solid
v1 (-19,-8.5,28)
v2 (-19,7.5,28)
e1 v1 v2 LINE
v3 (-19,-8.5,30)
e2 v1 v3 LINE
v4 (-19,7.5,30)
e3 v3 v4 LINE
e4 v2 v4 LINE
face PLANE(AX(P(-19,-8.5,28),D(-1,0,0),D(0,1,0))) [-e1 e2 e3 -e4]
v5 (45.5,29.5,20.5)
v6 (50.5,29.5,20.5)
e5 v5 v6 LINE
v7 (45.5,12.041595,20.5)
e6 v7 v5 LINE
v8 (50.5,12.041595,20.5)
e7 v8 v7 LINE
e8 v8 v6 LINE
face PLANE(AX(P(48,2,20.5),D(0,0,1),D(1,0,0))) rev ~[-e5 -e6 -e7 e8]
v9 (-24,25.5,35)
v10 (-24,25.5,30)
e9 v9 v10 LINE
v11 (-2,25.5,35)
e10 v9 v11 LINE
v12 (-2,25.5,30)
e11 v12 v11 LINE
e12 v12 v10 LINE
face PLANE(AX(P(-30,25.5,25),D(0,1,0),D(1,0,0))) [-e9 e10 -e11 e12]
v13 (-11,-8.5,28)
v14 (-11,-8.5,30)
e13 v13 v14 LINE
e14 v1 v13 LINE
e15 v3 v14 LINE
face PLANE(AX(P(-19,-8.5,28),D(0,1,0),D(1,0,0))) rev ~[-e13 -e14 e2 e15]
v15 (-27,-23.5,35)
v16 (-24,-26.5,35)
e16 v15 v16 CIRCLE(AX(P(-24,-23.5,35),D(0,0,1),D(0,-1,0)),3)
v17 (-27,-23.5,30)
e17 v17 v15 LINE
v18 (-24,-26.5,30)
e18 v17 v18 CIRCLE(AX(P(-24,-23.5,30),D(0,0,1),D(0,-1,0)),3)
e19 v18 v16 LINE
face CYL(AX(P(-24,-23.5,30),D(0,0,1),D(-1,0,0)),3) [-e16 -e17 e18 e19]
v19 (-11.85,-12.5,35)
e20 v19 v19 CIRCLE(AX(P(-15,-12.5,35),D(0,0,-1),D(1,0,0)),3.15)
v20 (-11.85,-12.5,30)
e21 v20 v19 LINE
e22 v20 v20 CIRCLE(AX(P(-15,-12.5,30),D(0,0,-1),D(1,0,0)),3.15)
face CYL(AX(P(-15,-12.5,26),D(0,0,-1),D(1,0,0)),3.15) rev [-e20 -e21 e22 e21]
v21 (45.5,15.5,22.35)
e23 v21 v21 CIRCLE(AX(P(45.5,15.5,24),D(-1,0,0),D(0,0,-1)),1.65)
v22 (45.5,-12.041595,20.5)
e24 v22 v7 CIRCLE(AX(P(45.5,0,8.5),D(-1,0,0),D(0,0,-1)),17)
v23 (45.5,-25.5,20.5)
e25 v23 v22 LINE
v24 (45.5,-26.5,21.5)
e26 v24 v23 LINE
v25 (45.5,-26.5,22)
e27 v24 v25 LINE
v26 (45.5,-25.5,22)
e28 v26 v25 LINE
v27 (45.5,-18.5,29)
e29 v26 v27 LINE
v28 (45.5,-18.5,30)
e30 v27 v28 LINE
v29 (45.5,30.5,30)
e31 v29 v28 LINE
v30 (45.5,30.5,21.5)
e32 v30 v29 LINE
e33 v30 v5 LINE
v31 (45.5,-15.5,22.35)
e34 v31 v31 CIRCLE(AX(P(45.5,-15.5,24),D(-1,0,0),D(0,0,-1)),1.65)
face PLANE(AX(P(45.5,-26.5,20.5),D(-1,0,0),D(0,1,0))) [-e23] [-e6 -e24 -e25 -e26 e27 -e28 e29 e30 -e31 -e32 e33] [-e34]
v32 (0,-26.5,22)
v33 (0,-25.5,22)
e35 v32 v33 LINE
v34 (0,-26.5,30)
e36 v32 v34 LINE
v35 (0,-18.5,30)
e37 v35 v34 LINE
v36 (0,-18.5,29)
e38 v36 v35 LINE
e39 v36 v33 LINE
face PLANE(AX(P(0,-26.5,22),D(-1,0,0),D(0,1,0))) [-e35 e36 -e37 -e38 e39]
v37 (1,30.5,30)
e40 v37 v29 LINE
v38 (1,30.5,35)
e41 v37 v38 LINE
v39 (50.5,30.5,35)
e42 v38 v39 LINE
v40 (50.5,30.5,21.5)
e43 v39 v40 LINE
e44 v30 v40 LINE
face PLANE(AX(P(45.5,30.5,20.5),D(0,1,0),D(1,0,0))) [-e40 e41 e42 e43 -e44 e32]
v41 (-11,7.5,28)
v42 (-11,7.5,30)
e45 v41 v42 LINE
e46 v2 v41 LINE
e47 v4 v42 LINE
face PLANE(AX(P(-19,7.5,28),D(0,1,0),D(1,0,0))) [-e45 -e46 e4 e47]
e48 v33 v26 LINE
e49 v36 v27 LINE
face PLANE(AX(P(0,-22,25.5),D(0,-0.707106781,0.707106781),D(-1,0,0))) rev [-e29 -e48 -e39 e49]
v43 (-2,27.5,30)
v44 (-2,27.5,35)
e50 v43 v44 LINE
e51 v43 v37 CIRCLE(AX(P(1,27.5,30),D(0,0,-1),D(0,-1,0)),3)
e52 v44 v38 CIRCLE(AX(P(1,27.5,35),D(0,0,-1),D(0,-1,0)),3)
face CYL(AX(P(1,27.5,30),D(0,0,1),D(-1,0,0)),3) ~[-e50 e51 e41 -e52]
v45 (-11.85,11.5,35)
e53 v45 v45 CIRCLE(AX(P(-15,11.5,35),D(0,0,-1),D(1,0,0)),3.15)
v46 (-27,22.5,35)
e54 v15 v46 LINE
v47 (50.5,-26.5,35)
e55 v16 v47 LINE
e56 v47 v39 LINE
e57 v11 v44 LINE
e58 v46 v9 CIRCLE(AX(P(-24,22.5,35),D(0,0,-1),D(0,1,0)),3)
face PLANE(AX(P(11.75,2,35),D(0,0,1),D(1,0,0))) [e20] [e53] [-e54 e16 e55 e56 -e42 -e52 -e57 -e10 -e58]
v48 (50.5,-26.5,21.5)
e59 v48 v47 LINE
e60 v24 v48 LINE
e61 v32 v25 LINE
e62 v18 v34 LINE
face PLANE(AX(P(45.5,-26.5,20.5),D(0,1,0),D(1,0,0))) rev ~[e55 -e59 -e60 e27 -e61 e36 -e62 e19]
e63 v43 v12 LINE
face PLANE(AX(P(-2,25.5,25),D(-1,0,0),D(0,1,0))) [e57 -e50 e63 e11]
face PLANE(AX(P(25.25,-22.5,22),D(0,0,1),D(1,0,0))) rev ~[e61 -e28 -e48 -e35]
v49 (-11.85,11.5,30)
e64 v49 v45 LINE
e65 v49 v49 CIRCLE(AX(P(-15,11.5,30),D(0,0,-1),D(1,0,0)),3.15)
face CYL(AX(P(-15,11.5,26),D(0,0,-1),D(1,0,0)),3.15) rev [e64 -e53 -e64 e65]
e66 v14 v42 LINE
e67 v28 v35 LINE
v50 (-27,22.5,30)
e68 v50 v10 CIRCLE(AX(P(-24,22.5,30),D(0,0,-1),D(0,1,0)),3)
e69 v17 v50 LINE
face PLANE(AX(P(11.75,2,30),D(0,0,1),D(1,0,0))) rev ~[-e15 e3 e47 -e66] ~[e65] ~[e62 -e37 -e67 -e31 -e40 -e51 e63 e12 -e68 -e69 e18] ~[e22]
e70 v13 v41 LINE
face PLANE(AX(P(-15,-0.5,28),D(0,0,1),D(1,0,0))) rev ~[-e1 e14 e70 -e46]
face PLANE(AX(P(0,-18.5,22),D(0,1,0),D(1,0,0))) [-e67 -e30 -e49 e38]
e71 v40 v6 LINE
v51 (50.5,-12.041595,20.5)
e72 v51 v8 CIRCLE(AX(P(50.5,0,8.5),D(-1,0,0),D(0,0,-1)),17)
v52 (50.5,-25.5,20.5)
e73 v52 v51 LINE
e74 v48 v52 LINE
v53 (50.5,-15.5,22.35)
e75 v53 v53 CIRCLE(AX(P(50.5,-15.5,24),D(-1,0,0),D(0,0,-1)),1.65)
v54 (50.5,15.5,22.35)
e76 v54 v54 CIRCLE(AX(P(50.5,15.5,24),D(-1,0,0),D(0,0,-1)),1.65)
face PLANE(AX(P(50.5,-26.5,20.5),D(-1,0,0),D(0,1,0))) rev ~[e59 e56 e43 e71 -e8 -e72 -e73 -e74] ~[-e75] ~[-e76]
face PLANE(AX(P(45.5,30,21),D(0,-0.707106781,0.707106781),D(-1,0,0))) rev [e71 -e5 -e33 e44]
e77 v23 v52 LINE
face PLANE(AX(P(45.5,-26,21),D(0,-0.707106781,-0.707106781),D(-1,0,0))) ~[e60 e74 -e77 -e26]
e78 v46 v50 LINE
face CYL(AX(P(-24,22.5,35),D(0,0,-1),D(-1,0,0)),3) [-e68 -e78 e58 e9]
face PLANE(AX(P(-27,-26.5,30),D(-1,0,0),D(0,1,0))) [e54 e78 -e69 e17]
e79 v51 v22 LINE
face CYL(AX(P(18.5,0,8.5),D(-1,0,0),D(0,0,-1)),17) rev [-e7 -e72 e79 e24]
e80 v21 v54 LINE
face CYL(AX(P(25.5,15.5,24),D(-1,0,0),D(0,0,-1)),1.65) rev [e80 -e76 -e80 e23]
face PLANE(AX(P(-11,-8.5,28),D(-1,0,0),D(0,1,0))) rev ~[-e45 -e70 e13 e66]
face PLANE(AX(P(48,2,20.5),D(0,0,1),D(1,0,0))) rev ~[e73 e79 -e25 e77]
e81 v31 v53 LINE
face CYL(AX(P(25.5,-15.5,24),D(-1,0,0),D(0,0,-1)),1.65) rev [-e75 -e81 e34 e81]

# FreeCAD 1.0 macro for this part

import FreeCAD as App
import Part
import Sketcher
from FreeCAD import Vector
Q = App.Units.Quantity


def edges_at(feature, points):
    """Names of the edges that pass closest to the given points."""
    edges = feature.Shape.Edges
    near = lambda p: min(range(len(edges)), key=lambda i: edges[i].distToShape(Part.Vertex(*p))[0])
    return sorted({f"Edge{near(p) + 1}" for p in points})

doc = App.newDocument("Part")
params = doc.addObject("Spreadsheet::Sheet", "Params")
for row, (alias, value) in enumerate([
    ("sketch1_diameter", "6.3 mm"),
    ("pad1_length", "10 mm"),
    ("sketch2_diameter", "6.3 mm"),
    ("pad2_length", "10 mm"),
    ("sketch3_diameter", "3.3 mm"),
    ("pad3_length", "83 mm"),
    ("sketch4_diameter", "3.3 mm"),
    ("pad4_length", "83 mm"),
    ("sketch5_height", "8 mm"),
    ("sketch5_width", "50.5 mm"),
    ("pad5_length", "9 mm"),
    ("chamfer_size", "7 mm"),
    ("sketch6_diameter", "34 mm"),
    ("pad6_length", "83 mm"),
    ("sketch7_width", "5 mm"),
    ("sketch7_height", "57 mm"),
    ("pad7_length", "10 mm"),
    ("chamfer2_size", "1 mm"),
    ("sketch8_width", "8 mm"),
    ("sketch8_height", "16 mm"),
    ("pad8_length", "2 mm"),
    ("sketch9_width", "28 mm"),
    ("sketch9_height", "14 mm"),
    ("pad9_length", "10 mm"),
    ("sketch10_height", "57 mm"),
    ("sketch10_width", "77.5 mm"),
    ("pad10_length", "5 mm"),
    ("fillet_radius", "3 mm"),
], start=1):
    params.set(f"A{row}", alias)
    params.set(f"B{row}", "=" + value)
    params.setAlias(f"B{row}", alias)

body = doc.addObject("PartDesign::Body", "Body")

sketch1 = body.newObject("Sketcher::SketchObject", "Sketch")
sketch1.AttachmentSupport = (doc.getObject("XY_Plane"), [""])
sketch1.MapMode = "FlatFace"
sketch1.AttachmentOffset = App.Placement(Vector(0, 0, 26), App.Rotation())
sketch1.addGeometry(Part.Circle(Vector(-15, 11.5, 0), Vector(0, 0, 1), 3.1), False)
sketch1.addConstraint([
    Sketcher.Constraint("Diameter", 0, Q("6.3 mm")),
    Sketcher.Constraint("DistanceX", 0, 3, -1, 1, Q("15 mm")),
    Sketcher.Constraint("DistanceY", -1, 1, 0, 3, Q("11.5 mm")),
])
sketch1.setExpression("Constraints[0]", "Params.sketch1_diameter")
pad1 = body.newObject("PartDesign::Pad", "Pad")
pad1.Profile = sketch1
pad1.setExpression("Length", "Params.pad1_length")
body2 = doc.addObject("PartDesign::Body", "Body001")
body2.AllowCompound = True

sketch2 = body2.newObject("Sketcher::SketchObject", "Sketch001")
sketch2.AttachmentSupport = (doc.getObject("XY_Plane001"), [""])
sketch2.MapMode = "FlatFace"
sketch2.AttachmentOffset = App.Placement(Vector(0, 0, 26), App.Rotation())
sketch2.addGeometry(Part.Circle(Vector(-15, -12.5, 0), Vector(0, 0, 1), 3.1), False)
sketch2.addConstraint([
    Sketcher.Constraint("Diameter", 0, Q("6.3 mm")),
    Sketcher.Constraint("DistanceX", 0, 3, -1, 1, Q("15 mm")),
    Sketcher.Constraint("DistanceY", 0, 3, -1, 1, Q("12.5 mm")),
])
sketch2.setExpression("Constraints[0]", "Params.sketch2_diameter")
pad2 = body2.newObject("PartDesign::Pad", "Pad001")
pad2.Profile = sketch2
pad2.setExpression("Length", "Params.pad2_length")
doc.recompute()

boolean = body2.newObject("PartDesign::Boolean", "Boolean")
boolean.Type = "Fuse"
boolean.addObjects([body])
body3 = doc.addObject("PartDesign::Body", "Body002")

sketch3 = body3.newObject("Sketcher::SketchObject", "Sketch002")
sketch3.AttachmentSupport = (doc.getObject("YZ_Plane002"), [""])
sketch3.MapMode = "FlatFace"
sketch3.AttachmentOffset = App.Placement(Vector(0, 0, 25.5), App.Rotation())
sketch3.addGeometry(Part.Circle(Vector(-15.5, 24, 0), Vector(0, 0, 1), 1.6), False)
sketch3.addConstraint([
    Sketcher.Constraint("Diameter", 0, Q("3.3 mm")),
    Sketcher.Constraint("DistanceY", -1, 1, 0, 3, Q("24 mm")),
    Sketcher.Constraint("DistanceX", 0, 3, -1, 1, Q("15.5 mm")),
])
sketch3.setExpression("Constraints[0]", "Params.sketch3_diameter")
pad3 = body3.newObject("PartDesign::Pad", "Pad002")
pad3.Profile = sketch3
pad3.setExpression("Length", "Params.pad3_length")
body4 = doc.addObject("PartDesign::Body", "Body003")
body4.AllowCompound = True

sketch4 = body4.newObject("Sketcher::SketchObject", "Sketch003")
sketch4.AttachmentSupport = (doc.getObject("YZ_Plane003"), [""])
sketch4.MapMode = "FlatFace"
sketch4.AttachmentOffset = App.Placement(Vector(0, 0, 25.5), App.Rotation())
sketch4.addGeometry(Part.Circle(Vector(15.5, 24, 0), Vector(0, 0, 1), 1.6), False)
sketch4.addConstraint([
    Sketcher.Constraint("Diameter", 0, Q("3.3 mm")),
    Sketcher.Constraint("DistanceY", -1, 1, 0, 3, Q("24 mm")),
    Sketcher.Constraint("DistanceX", -1, 1, 0, 3, Q("15.5 mm")),
])
sketch4.setExpression("Constraints[0]", "Params.sketch4_diameter")
pad4 = body4.newObject("PartDesign::Pad", "Pad003")
pad4.Profile = sketch4
pad4.setExpression("Length", "Params.pad4_length")
doc.recompute()

boolean2 = body4.newObject("PartDesign::Boolean", "Boolean001")
boolean2.Type = "Fuse"
boolean2.addObjects([body3])
body5 = doc.addObject("PartDesign::Body", "Body004")

sketch5 = body5.newObject("Sketcher::SketchObject", "Sketch004")
sketch5.AttachmentSupport = (doc.getObject("XY_Plane004"), [""])
sketch5.MapMode = "FlatFace"
sketch5.AttachmentOffset = App.Placement(Vector(0, 0, 22), App.Rotation())
sketch5.addGeometry([
    Part.LineSegment(Vector(0, -18, 0), Vector(0, -26, 0)),
    Part.LineSegment(Vector(0, -26, 0), Vector(50, -26, 0)),
    Part.LineSegment(Vector(50, -26, 0), Vector(50, -18, 0)),
    Part.LineSegment(Vector(50, -18, 0), Vector(0, -18, 0)),
], False)
sketch5.addConstraint([
    Sketcher.Constraint("Coincident", 0, 2, 1, 1),
    Sketcher.Constraint("Coincident", 1, 2, 2, 1),
    Sketcher.Constraint("Coincident", 2, 2, 3, 1),
    Sketcher.Constraint("Coincident", 3, 2, 0, 1),
    Sketcher.Constraint("Vertical", 0),
    Sketcher.Constraint("Horizontal", 1),
    Sketcher.Constraint("Vertical", 2),
    Sketcher.Constraint("Horizontal", 3),
    Sketcher.Constraint("PointOnObject", 0, 2, -2),
    Sketcher.Constraint("DistanceY", 0, 2, 0, 1, Q("8 mm")),
    Sketcher.Constraint("DistanceX", 1, 1, 1, 2, Q("50.5 mm")),
    Sketcher.Constraint("DistanceY", 0, 2, -1, 1, Q("26.5 mm")),
])
sketch5.setExpression("Constraints[9]", "Params.sketch5_height")
sketch5.setExpression("Constraints[10]", "Params.sketch5_width")
pad5 = body5.newObject("PartDesign::Pad", "Pad004")
pad5.Profile = sketch5
pad5.setExpression("Length", "Params.pad5_length")
doc.recompute()

chamfer = body5.newObject("PartDesign::Chamfer", "Chamfer")
chamfer.Base = (pad5, edges_at(pad5, [(25.25, -18.5, 22)]))
chamfer.setExpression("Size", "Params.chamfer_size")
body6 = doc.addObject("PartDesign::Body", "Body005")

sketch6 = body6.newObject("Sketcher::SketchObject", "Sketch005")
sketch6.AttachmentSupport = (doc.getObject("YZ_Plane005"), [""])
sketch6.MapMode = "FlatFace"
sketch6.AttachmentOffset = App.Placement(Vector(0, 0, 18.5), App.Rotation())
sketch6.addGeometry(Part.Circle(Vector(0, 8, 0), Vector(0, 0, 1), 17), False)
sketch6.addConstraint([
    Sketcher.Constraint("PointOnObject", 0, 3, -2),
    Sketcher.Constraint("Diameter", 0, Q("34 mm")),
    Sketcher.Constraint("DistanceY", -1, 1, 0, 3, Q("8.5 mm")),
])
sketch6.setExpression("Constraints[1]", "Params.sketch6_diameter")
pad6 = body6.newObject("PartDesign::Pad", "Pad005")
pad6.Profile = sketch6
pad6.setExpression("Length", "Params.pad6_length")
body7 = doc.addObject("PartDesign::Body", "Body006")

sketch7 = body7.newObject("Sketcher::SketchObject", "Sketch006")
sketch7.AttachmentSupport = (doc.getObject("XY_Plane006"), [""])
sketch7.MapMode = "FlatFace"
sketch7.AttachmentOffset = App.Placement(Vector(0, 0, 20.5), App.Rotation())
sketch7.addGeometry([
    Part.LineSegment(Vector(46, 30, 0), Vector(46, -26, 0)),
    Part.LineSegment(Vector(46, -26, 0), Vector(50, -26, 0)),
    Part.LineSegment(Vector(50, -26, 0), Vector(50, 30, 0)),
    Part.LineSegment(Vector(50, 30, 0), Vector(46, 30, 0)),
], False)
sketch7.addConstraint([
    Sketcher.Constraint("Coincident", 0, 2, 1, 1),
    Sketcher.Constraint("Coincident", 1, 2, 2, 1),
    Sketcher.Constraint("Coincident", 2, 2, 3, 1),
    Sketcher.Constraint("Coincident", 3, 2, 0, 1),
    Sketcher.Constraint("Vertical", 0),
    Sketcher.Constraint("Horizontal", 1),
    Sketcher.Constraint("Vertical", 2),
    Sketcher.Constraint("Horizontal", 3),
    Sketcher.Constraint("DistanceX", 1, 1, 1, 2, Q("5 mm")),
    Sketcher.Constraint("DistanceY", 0, 2, 0, 1, Q("57 mm")),
    Sketcher.Constraint("DistanceX", -1, 1, 0, 2, Q("45.5 mm")),
    Sketcher.Constraint("DistanceY", 0, 2, -1, 1, Q("26.5 mm")),
])
sketch7.setExpression("Constraints[8]", "Params.sketch7_width")
sketch7.setExpression("Constraints[9]", "Params.sketch7_height")
pad7 = body7.newObject("PartDesign::Pad", "Pad006")
pad7.Profile = sketch7
pad7.setExpression("Length", "Params.pad7_length")
doc.recompute()

chamfer2 = body7.newObject("PartDesign::Chamfer", "Chamfer001")
chamfer2.Base = (pad7, edges_at(pad7, [(48, -26.5, 20.5), (48, 30.5, 20.5)]))
chamfer2.setExpression("Size", "Params.chamfer2_size")
doc.recompute()

boolean3 = body7.newObject("PartDesign::Boolean", "Boolean002")
boolean3.Type = "Cut"
boolean3.addObjects([body6])
body8 = doc.addObject("PartDesign::Body", "Body007")

sketch8 = body8.newObject("Sketcher::SketchObject", "Sketch007")
sketch8.AttachmentSupport = (doc.getObject("XY_Plane007"), [""])
sketch8.MapMode = "FlatFace"
sketch8.AttachmentOffset = App.Placement(Vector(0, 0, 28), App.Rotation())
sketch8.addGeometry([
    Part.LineSegment(Vector(-19, 8, 0), Vector(-19, -8, 0)),
    Part.LineSegment(Vector(-19, -8, 0), Vector(-11, -8, 0)),
    Part.LineSegment(Vector(-11, -8, 0), Vector(-11, 8, 0)),
    Part.LineSegment(Vector(-11, 8, 0), Vector(-19, 8, 0)),
], False)
sketch8.addConstraint([
    Sketcher.Constraint("Coincident", 0, 2, 1, 1),
    Sketcher.Constraint("Coincident", 1, 2, 2, 1),
    Sketcher.Constraint("Coincident", 2, 2, 3, 1),
    Sketcher.Constraint("Coincident", 3, 2, 0, 1),
    Sketcher.Constraint("Vertical", 0),
    Sketcher.Constraint("Horizontal", 1),
    Sketcher.Constraint("Vertical", 2),
    Sketcher.Constraint("Horizontal", 3),
    Sketcher.Constraint("DistanceX", 1, 1, 1, 2, Q("8 mm")),
    Sketcher.Constraint("DistanceY", 0, 2, 0, 1, Q("16 mm")),
    Sketcher.Constraint("DistanceX", 0, 2, -1, 1, Q("19 mm")),
    Sketcher.Constraint("DistanceY", 0, 2, -1, 1, Q("8.5 mm")),
])
sketch8.setExpression("Constraints[8]", "Params.sketch8_width")
sketch8.setExpression("Constraints[9]", "Params.sketch8_height")
pad8 = body8.newObject("PartDesign::Pad", "Pad007")
pad8.Profile = sketch8
pad8.setExpression("Length", "Params.pad8_length")
body9 = doc.addObject("PartDesign::Body", "Body008")

sketch9 = body9.newObject("Sketcher::SketchObject", "Sketch008")
sketch9.AttachmentSupport = (doc.getObject("XY_Plane008"), [""])
sketch9.MapMode = "FlatFace"
sketch9.AttachmentOffset = App.Placement(Vector(0, 0, 25), App.Rotation())
sketch9.addGeometry([
    Part.LineSegment(Vector(-30, 40, 0), Vector(-30, 26, 0)),
    Part.LineSegment(Vector(-30, 26, 0), Vector(-2, 26, 0)),
    Part.LineSegment(Vector(-2, 26, 0), Vector(-2, 40, 0)),
    Part.LineSegment(Vector(-2, 40, 0), Vector(-30, 40, 0)),
], False)
sketch9.addConstraint([
    Sketcher.Constraint("Coincident", 0, 2, 1, 1),
    Sketcher.Constraint("Coincident", 1, 2, 2, 1),
    Sketcher.Constraint("Coincident", 2, 2, 3, 1),
    Sketcher.Constraint("Coincident", 3, 2, 0, 1),
    Sketcher.Constraint("Vertical", 0),
    Sketcher.Constraint("Horizontal", 1),
    Sketcher.Constraint("Vertical", 2),
    Sketcher.Constraint("Horizontal", 3),
    Sketcher.Constraint("DistanceX", 1, 1, 1, 2, Q("28 mm")),
    Sketcher.Constraint("DistanceY", 0, 2, 0, 1, Q("14 mm")),
    Sketcher.Constraint("DistanceX", 0, 2, -1, 1, Q("30 mm")),
    Sketcher.Constraint("DistanceY", -1, 1, 0, 2, Q("25.5 mm")),
])
sketch9.setExpression("Constraints[8]", "Params.sketch9_width")
sketch9.setExpression("Constraints[9]", "Params.sketch9_height")
pad9 = body9.newObject("PartDesign::Pad", "Pad008")
pad9.Profile = sketch9
pad9.setExpression("Length", "Params.pad9_length")
body10 = doc.addObject("PartDesign::Body", "Body009")

sketch10 = body10.newObject("Sketcher::SketchObject", "Sketch009")
sketch10.AttachmentSupport = (doc.getObject("XY_Plane009"), [""])
sketch10.MapMode = "FlatFace"
sketch10.AttachmentOffset = App.Placement(Vector(0, 0, 30), App.Rotation())
sketch10.addGeometry([
    Part.LineSegment(Vector(-27, 30, 0), Vector(-27, -26, 0)),
    Part.LineSegment(Vector(-27, -26, 0), Vector(50, -26, 0)),
    Part.LineSegment(Vector(50, -26, 0), Vector(50, 30, 0)),
    Part.LineSegment(Vector(50, 30, 0), Vector(-27, 30, 0)),
], False)
sketch10.addConstraint([
    Sketcher.Constraint("Coincident", 0, 2, 1, 1),
    Sketcher.Constraint("Coincident", 1, 2, 2, 1),
    Sketcher.Constraint("Coincident", 2, 2, 3, 1),
    Sketcher.Constraint("Coincident", 3, 2, 0, 1),
    Sketcher.Constraint("Vertical", 0),
    Sketcher.Constraint("Horizontal", 1),
    Sketcher.Constraint("Vertical", 2),
    Sketcher.Constraint("Horizontal", 3),
    Sketcher.Constraint("DistanceY", 0, 2, 0, 1, Q("57 mm")),
    Sketcher.Constraint("DistanceX", 1, 1, 1, 2, Q("77.5 mm")),
    Sketcher.Constraint("DistanceX", 0, 2, -1, 1, Q("27 mm")),
    Sketcher.Constraint("DistanceY", 0, 2, -1, 1, Q("26.5 mm")),
])
sketch10.setExpression("Constraints[8]", "Params.sketch10_height")
sketch10.setExpression("Constraints[9]", "Params.sketch10_width")
pad10 = body10.newObject("PartDesign::Pad", "Pad009")
pad10.Profile = sketch10
pad10.setExpression("Length", "Params.pad10_length")
doc.recompute()

boolean4 = body10.newObject("PartDesign::Boolean", "Boolean003")
boolean4.Type = "Cut"
boolean4.addObjects([body9])
doc.recompute()

fillet = body10.newObject("PartDesign::Fillet", "Fillet")
fillet.Base = (boolean4, edges_at(boolean4, [(-27, 25.5, 32.5), (-27, -26.5, 32.5), (-2, 30.5, 32.5)]))
fillet.setExpression("Radius", "Params.fillet_radius")
doc.recompute()

boolean5 = body10.newObject("PartDesign::Boolean", "Boolean004")
boolean5.Type = "Fuse"
boolean5.addObjects([body5])
doc.recompute()

boolean6 = body10.newObject("PartDesign::Boolean", "Boolean005")
boolean6.Type = "Fuse"
boolean6.addObjects([body7])
doc.recompute()

boolean7 = body10.newObject("PartDesign::Boolean", "Boolean006")
boolean7.Type = "Fuse"
boolean7.addObjects([body8])
doc.recompute()

boolean8 = body10.newObject("PartDesign::Boolean", "Boolean007")
boolean8.Type = "Cut"
boolean8.addObjects([body4])
doc.recompute()

boolean9 = body10.newObject("PartDesign::Boolean", "Boolean008")
boolean9.Type = "Cut"
boolean9.addObjects([body2])

doc.recompute()
